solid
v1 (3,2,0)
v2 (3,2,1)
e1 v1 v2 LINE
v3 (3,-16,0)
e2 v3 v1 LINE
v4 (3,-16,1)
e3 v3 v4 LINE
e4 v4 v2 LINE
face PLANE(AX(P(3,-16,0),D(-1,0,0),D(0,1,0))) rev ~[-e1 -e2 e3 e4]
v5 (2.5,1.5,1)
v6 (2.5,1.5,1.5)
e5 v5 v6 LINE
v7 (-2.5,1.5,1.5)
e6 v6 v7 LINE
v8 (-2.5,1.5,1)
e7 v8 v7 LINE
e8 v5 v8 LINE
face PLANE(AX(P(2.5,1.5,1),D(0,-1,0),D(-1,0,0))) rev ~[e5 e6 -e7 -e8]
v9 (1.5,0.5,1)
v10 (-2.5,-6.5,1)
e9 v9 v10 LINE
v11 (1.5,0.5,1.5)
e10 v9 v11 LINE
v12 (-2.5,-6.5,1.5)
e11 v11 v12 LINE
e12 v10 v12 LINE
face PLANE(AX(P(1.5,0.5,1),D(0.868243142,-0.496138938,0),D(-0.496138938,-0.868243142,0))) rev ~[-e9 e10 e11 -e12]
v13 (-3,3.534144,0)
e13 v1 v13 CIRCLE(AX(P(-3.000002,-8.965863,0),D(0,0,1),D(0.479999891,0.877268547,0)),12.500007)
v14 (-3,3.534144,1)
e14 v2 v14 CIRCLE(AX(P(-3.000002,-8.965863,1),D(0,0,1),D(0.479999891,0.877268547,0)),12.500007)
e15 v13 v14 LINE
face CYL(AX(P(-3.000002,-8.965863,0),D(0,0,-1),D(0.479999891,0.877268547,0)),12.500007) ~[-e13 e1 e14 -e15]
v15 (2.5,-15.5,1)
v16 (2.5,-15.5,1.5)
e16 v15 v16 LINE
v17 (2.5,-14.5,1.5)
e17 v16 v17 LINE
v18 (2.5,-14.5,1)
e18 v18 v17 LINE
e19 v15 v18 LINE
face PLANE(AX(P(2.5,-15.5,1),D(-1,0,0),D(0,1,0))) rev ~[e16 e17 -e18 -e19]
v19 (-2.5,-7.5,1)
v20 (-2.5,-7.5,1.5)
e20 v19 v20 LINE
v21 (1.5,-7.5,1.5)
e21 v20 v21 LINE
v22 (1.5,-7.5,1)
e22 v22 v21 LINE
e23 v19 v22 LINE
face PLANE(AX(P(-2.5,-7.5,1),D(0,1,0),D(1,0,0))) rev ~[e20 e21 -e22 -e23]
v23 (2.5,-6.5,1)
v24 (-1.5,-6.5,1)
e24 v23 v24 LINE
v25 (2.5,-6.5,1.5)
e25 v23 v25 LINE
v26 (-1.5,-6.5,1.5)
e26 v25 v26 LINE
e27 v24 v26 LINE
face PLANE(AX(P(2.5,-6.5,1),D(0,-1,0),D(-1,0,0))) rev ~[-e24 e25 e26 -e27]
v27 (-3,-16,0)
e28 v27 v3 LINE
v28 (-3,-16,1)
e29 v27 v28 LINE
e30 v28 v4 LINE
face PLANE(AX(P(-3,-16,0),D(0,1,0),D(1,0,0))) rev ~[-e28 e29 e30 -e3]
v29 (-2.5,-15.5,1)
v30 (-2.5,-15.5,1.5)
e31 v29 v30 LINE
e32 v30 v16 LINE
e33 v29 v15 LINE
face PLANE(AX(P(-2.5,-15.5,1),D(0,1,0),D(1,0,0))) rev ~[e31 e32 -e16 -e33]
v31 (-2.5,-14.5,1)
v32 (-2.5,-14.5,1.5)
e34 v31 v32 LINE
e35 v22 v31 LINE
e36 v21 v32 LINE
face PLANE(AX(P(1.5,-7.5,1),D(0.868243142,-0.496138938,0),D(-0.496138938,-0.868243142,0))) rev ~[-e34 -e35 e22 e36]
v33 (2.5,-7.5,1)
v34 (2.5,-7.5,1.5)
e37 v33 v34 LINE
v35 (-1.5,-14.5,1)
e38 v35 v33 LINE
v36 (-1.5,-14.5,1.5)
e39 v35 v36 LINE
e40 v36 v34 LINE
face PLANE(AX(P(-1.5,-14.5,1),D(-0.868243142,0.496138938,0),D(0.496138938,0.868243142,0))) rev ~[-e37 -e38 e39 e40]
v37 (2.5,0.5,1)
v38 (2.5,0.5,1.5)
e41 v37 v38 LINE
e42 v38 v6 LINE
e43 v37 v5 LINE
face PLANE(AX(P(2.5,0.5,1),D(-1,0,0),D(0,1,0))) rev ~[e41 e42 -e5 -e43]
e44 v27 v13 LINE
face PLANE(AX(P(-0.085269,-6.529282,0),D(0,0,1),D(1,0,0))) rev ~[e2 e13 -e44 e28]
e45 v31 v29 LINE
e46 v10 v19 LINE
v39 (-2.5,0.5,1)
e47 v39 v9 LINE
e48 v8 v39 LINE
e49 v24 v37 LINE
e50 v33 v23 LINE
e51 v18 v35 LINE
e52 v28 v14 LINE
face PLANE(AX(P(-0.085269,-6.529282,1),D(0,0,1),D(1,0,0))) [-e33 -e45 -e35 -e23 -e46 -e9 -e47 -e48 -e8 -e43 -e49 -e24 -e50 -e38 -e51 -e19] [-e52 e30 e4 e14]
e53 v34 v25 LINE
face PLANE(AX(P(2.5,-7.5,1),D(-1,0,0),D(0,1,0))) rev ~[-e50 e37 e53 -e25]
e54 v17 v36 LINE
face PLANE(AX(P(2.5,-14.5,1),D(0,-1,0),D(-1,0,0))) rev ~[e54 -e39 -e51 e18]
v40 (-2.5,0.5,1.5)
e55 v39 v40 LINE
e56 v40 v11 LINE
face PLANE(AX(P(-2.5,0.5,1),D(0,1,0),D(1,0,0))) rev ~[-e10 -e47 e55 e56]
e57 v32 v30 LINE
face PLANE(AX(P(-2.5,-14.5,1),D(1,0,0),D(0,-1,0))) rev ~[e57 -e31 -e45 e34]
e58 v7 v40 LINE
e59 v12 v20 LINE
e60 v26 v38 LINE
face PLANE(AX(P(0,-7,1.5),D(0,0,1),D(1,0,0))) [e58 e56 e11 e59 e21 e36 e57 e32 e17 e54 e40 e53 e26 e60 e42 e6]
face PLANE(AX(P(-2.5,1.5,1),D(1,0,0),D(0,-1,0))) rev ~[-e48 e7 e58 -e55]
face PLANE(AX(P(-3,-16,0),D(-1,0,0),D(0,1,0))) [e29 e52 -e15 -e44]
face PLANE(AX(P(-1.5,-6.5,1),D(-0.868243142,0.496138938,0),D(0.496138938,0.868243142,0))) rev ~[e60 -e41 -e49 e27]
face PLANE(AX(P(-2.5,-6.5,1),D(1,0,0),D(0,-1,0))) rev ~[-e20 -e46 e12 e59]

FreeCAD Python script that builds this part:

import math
import FreeCAD as App
import Part
import Sketcher

V = App.Vector
Q = App.Units.Quantity

doc = App.newDocument("Part")
body = doc.addObject("PartDesign::Body", "Body")

# Sketch on XY plane
sketch1 = doc.addObject("Sketcher::SketchObject", "Sketch")
body.addObject(sketch1)
sketch1.AttachmentSupport = (doc.XY_Plane, [""])
sketch1.MapMode = "FlatFace"
sketch1.addGeometry(Part.LineSegment(V(-3, -16, 0), V(3, -16, 0)), False)
sketch1.addGeometry(Part.LineSegment(V(3, -16, 0), V(3, 2, 0)), False)
sketch1.addGeometry(Part.ArcOfCircle(Part.Circle(V(-3.000002, -8.965863, 0), V(0, 0, 1), 12.500007), math.radians(61.314605), math.radians(89.999991)), False)
sketch1.addGeometry(Part.LineSegment(V(-3, 3.534144, 0), V(-3, -16, 0)), False)
sketch1.addConstraint(Sketcher.Constraint("Coincident", 0, 2, 1, 1))
sketch1.addConstraint(Sketcher.Constraint("Coincident", 1, 2, 2, 1))
sketch1.addConstraint(Sketcher.Constraint("Coincident", 2, 2, 3, 1))
sketch1.addConstraint(Sketcher.Constraint("Coincident", 3, 2, 0, 1))
sketch1.addConstraint(Sketcher.Constraint("Horizontal", 0))
sketch1.addConstraint(Sketcher.Constraint("Vertical", 1))
sketch1.addConstraint(Sketcher.Constraint("Vertical", 3))
sketch1.addConstraint(Sketcher.Constraint("DistanceX", 0, 1, 0, 2, Q("6 mm")))
sketch1.addConstraint(Sketcher.Constraint("DistanceY", 1, 1, 1, 2, Q("18 mm")))
sketch1.addConstraint(Sketcher.Constraint("DistanceX", 2, 3, -1, 1, Q("3.000002 mm")))
sketch1.addConstraint(Sketcher.Constraint("DistanceX", -1, 1, 0, 2, Q("3 mm")))
sketch1.addConstraint(Sketcher.Constraint("DistanceY", 0, 2, -1, 1, Q("16 mm")))
sketch1.addConstraint(Sketcher.Constraint("Radius", 2, Q("12.500007 mm")))
pad1 = doc.addObject("PartDesign::Pad", "Pad")
body.addObject(pad1)
pad1.Profile = sketch1
pad1.Length = 1

# Sketch on XY plane
sketch2 = doc.addObject("Sketcher::SketchObject", "Sketch001")
body.addObject(sketch2)
sketch2.AttachmentSupport = (doc.XY_Plane, [""])
sketch2.MapMode = "FlatFace"
sketch2.AttachmentOffset = App.Placement(V(0, 0, 1), App.Rotation())
sketch2.addGeometry(Part.LineSegment(V(2.5, 1.5, 0), V(-2.5, 1.5, 0)), False)
sketch2.addGeometry(Part.LineSegment(V(-2.5, 1.5, 0), V(-2.5, 0.5, 0)), False)
sketch2.addGeometry(Part.LineSegment(V(-2.5, 0.5, 0), V(1.5, 0.5, 0)), False)
sketch2.addGeometry(Part.LineSegment(V(1.5, 0.5, 0), V(-2.5, -6.5, 0)), False)
sketch2.addGeometry(Part.LineSegment(V(-2.5, -6.5, 0), V(-2.5, -7.5, 0)), False)
sketch2.addGeometry(Part.LineSegment(V(-2.5, -7.5, 0), V(1.5, -7.5, 0)), False)
sketch2.addGeometry(Part.LineSegment(V(1.5, -7.5, 0), V(-2.5, -14.5, 0)), False)
sketch2.addGeometry(Part.LineSegment(V(-2.5, -14.5, 0), V(-2.5, -15.5, 0)), False)
sketch2.addGeometry(Part.LineSegment(V(-2.5, -15.5, 0), V(2.5, -15.5, 0)), False)
sketch2.addGeometry(Part.LineSegment(V(2.5, -15.5, 0), V(2.5, -14.5, 0)), False)
sketch2.addGeometry(Part.LineSegment(V(2.5, -14.5, 0), V(-1.5, -14.5, 0)), False)
sketch2.addGeometry(Part.LineSegment(V(-1.5, -14.5, 0), V(2.5, -7.5, 0)), False)
sketch2.addGeometry(Part.LineSegment(V(2.5, -7.5, 0), V(2.5, -6.5, 0)), False)
sketch2.addGeometry(Part.LineSegment(V(2.5, -6.5, 0), V(-1.5, -6.5, 0)), False)
sketch2.addGeometry(Part.LineSegment(V(-1.5, -6.5, 0), V(2.5, 0.5, 0)), False)
sketch2.addGeometry(Part.LineSegment(V(2.5, 0.5, 0), V(2.5, 1.5, 0)), False)
sketch2.addConstraint(Sketcher.Constraint("Coincident", 0, 2, 1, 1))
sketch2.addConstraint(Sketcher.Constraint("Coincident", 1, 2, 2, 1))
sketch2.addConstraint(Sketcher.Constraint("Coincident", 2, 2, 3, 1))
sketch2.addConstraint(Sketcher.Constraint("Coincident", 3, 2, 4, 1))
sketch2.addConstraint(Sketcher.Constraint("Coincident", 4, 2, 5, 1))
sketch2.addConstraint(Sketcher.Constraint("Coincident", 5, 2, 6, 1))
sketch2.addConstraint(Sketcher.Constraint("Coincident", 6, 2, 7, 1))
sketch2.addConstraint(Sketcher.Constraint("Coincident", 7, 2, 8, 1))
sketch2.addConstraint(Sketcher.Constraint("Coincident", 8, 2, 9, 1))
sketch2.addConstraint(Sketcher.Constraint("Coincident", 9, 2, 10, 1))
sketch2.addConstraint(Sketcher.Constraint("Coincident", 10, 2, 11, 1))
sketch2.addConstraint(Sketcher.Constraint("Coincident", 11, 2, 12, 1))
sketch2.addConstraint(Sketcher.Constraint("Coincident", 12, 2, 13, 1))
sketch2.addConstraint(Sketcher.Constraint("Coincident", 13, 2, 14, 1))
sketch2.addConstraint(Sketcher.Constraint("Coincident", 14, 2, 15, 1))
sketch2.addConstraint(Sketcher.Constraint("Coincident", 15, 2, 0, 1))
sketch2.addConstraint(Sketcher.Constraint("Horizontal", 0))
sketch2.addConstraint(Sketcher.Constraint("Vertical", 1))
sketch2.addConstraint(Sketcher.Constraint("Horizontal", 2))
sketch2.addConstraint(Sketcher.Constraint("Vertical", 4))
sketch2.addConstraint(Sketcher.Constraint("Horizontal", 5))
sketch2.addConstraint(Sketcher.Constraint("Vertical", 7))
sketch2.addConstraint(Sketcher.Constraint("Horizontal", 8))
sketch2.addConstraint(Sketcher.Constraint("Vertical", 9))
sketch2.addConstraint(Sketcher.Constraint("Horizontal", 10))
sketch2.addConstraint(Sketcher.Constraint("Vertical", 12))
sketch2.addConstraint(Sketcher.Constraint("Horizontal", 13))
sketch2.addConstraint(Sketcher.Constraint("Vertical", 15))
sketch2.addConstraint(Sketcher.Constraint("Symmetric", 6, 2, 9, 2, -2))
sketch2.addConstraint(Sketcher.Constraint("Symmetric", 4, 2, 11, 2, -2))
sketch2.addConstraint(Sketcher.Constraint("Symmetric", 1, 2, 14, 2, -2))
sketch2.addConstraint(Sketcher.Constraint("Parallel", 3, 6))
sketch2.addConstraint(Sketcher.Constraint("Parallel", 6, 11))
sketch2.addConstraint(Sketcher.Constraint("Parallel", 11, 14))
sketch2.addConstraint(Sketcher.Constraint("Horizontal", 3, 2, 12, 2))
sketch2.addConstraint(Sketcher.Constraint("Vertical", 1, 2, 3, 2))
sketch2.addConstraint(Sketcher.Constraint("Vertical", 2, 2, 5, 2))
sketch2.addConstraint(Sketcher.Constraint("Vertical", 4, 2, 6, 2))
sketch2.addConstraint(Sketcher.Constraint("Equal", 1, 4))
sketch2.addConstraint(Sketcher.Constraint("Equal", 4, 7))
sketch2.addConstraint(Sketcher.Constraint("DistanceX", 0, 2, 0, 1, Q("5 mm")))
sketch2.addConstraint(Sketcher.Constraint("DistanceX", 2, 1, 2, 2, Q("4 mm")))
sketch2.addConstraint(Sketcher.Constraint("DistanceY", 1, 2, 1, 1, Q("1 mm")))
sketch2.addConstraint(Sketcher.Constraint("DistanceY", 3, 2, 1, 2, Q("7 mm")))
sketch2.addConstraint(Sketcher.Constraint("DistanceY", -1, 1, 0, 2, Q("1.5 mm")))
pad2 = doc.addObject("PartDesign::Pad", "Pad001")
body.addObject(pad2)
pad2.Profile = sketch2
pad2.Length = 0.5

doc.recompute()
